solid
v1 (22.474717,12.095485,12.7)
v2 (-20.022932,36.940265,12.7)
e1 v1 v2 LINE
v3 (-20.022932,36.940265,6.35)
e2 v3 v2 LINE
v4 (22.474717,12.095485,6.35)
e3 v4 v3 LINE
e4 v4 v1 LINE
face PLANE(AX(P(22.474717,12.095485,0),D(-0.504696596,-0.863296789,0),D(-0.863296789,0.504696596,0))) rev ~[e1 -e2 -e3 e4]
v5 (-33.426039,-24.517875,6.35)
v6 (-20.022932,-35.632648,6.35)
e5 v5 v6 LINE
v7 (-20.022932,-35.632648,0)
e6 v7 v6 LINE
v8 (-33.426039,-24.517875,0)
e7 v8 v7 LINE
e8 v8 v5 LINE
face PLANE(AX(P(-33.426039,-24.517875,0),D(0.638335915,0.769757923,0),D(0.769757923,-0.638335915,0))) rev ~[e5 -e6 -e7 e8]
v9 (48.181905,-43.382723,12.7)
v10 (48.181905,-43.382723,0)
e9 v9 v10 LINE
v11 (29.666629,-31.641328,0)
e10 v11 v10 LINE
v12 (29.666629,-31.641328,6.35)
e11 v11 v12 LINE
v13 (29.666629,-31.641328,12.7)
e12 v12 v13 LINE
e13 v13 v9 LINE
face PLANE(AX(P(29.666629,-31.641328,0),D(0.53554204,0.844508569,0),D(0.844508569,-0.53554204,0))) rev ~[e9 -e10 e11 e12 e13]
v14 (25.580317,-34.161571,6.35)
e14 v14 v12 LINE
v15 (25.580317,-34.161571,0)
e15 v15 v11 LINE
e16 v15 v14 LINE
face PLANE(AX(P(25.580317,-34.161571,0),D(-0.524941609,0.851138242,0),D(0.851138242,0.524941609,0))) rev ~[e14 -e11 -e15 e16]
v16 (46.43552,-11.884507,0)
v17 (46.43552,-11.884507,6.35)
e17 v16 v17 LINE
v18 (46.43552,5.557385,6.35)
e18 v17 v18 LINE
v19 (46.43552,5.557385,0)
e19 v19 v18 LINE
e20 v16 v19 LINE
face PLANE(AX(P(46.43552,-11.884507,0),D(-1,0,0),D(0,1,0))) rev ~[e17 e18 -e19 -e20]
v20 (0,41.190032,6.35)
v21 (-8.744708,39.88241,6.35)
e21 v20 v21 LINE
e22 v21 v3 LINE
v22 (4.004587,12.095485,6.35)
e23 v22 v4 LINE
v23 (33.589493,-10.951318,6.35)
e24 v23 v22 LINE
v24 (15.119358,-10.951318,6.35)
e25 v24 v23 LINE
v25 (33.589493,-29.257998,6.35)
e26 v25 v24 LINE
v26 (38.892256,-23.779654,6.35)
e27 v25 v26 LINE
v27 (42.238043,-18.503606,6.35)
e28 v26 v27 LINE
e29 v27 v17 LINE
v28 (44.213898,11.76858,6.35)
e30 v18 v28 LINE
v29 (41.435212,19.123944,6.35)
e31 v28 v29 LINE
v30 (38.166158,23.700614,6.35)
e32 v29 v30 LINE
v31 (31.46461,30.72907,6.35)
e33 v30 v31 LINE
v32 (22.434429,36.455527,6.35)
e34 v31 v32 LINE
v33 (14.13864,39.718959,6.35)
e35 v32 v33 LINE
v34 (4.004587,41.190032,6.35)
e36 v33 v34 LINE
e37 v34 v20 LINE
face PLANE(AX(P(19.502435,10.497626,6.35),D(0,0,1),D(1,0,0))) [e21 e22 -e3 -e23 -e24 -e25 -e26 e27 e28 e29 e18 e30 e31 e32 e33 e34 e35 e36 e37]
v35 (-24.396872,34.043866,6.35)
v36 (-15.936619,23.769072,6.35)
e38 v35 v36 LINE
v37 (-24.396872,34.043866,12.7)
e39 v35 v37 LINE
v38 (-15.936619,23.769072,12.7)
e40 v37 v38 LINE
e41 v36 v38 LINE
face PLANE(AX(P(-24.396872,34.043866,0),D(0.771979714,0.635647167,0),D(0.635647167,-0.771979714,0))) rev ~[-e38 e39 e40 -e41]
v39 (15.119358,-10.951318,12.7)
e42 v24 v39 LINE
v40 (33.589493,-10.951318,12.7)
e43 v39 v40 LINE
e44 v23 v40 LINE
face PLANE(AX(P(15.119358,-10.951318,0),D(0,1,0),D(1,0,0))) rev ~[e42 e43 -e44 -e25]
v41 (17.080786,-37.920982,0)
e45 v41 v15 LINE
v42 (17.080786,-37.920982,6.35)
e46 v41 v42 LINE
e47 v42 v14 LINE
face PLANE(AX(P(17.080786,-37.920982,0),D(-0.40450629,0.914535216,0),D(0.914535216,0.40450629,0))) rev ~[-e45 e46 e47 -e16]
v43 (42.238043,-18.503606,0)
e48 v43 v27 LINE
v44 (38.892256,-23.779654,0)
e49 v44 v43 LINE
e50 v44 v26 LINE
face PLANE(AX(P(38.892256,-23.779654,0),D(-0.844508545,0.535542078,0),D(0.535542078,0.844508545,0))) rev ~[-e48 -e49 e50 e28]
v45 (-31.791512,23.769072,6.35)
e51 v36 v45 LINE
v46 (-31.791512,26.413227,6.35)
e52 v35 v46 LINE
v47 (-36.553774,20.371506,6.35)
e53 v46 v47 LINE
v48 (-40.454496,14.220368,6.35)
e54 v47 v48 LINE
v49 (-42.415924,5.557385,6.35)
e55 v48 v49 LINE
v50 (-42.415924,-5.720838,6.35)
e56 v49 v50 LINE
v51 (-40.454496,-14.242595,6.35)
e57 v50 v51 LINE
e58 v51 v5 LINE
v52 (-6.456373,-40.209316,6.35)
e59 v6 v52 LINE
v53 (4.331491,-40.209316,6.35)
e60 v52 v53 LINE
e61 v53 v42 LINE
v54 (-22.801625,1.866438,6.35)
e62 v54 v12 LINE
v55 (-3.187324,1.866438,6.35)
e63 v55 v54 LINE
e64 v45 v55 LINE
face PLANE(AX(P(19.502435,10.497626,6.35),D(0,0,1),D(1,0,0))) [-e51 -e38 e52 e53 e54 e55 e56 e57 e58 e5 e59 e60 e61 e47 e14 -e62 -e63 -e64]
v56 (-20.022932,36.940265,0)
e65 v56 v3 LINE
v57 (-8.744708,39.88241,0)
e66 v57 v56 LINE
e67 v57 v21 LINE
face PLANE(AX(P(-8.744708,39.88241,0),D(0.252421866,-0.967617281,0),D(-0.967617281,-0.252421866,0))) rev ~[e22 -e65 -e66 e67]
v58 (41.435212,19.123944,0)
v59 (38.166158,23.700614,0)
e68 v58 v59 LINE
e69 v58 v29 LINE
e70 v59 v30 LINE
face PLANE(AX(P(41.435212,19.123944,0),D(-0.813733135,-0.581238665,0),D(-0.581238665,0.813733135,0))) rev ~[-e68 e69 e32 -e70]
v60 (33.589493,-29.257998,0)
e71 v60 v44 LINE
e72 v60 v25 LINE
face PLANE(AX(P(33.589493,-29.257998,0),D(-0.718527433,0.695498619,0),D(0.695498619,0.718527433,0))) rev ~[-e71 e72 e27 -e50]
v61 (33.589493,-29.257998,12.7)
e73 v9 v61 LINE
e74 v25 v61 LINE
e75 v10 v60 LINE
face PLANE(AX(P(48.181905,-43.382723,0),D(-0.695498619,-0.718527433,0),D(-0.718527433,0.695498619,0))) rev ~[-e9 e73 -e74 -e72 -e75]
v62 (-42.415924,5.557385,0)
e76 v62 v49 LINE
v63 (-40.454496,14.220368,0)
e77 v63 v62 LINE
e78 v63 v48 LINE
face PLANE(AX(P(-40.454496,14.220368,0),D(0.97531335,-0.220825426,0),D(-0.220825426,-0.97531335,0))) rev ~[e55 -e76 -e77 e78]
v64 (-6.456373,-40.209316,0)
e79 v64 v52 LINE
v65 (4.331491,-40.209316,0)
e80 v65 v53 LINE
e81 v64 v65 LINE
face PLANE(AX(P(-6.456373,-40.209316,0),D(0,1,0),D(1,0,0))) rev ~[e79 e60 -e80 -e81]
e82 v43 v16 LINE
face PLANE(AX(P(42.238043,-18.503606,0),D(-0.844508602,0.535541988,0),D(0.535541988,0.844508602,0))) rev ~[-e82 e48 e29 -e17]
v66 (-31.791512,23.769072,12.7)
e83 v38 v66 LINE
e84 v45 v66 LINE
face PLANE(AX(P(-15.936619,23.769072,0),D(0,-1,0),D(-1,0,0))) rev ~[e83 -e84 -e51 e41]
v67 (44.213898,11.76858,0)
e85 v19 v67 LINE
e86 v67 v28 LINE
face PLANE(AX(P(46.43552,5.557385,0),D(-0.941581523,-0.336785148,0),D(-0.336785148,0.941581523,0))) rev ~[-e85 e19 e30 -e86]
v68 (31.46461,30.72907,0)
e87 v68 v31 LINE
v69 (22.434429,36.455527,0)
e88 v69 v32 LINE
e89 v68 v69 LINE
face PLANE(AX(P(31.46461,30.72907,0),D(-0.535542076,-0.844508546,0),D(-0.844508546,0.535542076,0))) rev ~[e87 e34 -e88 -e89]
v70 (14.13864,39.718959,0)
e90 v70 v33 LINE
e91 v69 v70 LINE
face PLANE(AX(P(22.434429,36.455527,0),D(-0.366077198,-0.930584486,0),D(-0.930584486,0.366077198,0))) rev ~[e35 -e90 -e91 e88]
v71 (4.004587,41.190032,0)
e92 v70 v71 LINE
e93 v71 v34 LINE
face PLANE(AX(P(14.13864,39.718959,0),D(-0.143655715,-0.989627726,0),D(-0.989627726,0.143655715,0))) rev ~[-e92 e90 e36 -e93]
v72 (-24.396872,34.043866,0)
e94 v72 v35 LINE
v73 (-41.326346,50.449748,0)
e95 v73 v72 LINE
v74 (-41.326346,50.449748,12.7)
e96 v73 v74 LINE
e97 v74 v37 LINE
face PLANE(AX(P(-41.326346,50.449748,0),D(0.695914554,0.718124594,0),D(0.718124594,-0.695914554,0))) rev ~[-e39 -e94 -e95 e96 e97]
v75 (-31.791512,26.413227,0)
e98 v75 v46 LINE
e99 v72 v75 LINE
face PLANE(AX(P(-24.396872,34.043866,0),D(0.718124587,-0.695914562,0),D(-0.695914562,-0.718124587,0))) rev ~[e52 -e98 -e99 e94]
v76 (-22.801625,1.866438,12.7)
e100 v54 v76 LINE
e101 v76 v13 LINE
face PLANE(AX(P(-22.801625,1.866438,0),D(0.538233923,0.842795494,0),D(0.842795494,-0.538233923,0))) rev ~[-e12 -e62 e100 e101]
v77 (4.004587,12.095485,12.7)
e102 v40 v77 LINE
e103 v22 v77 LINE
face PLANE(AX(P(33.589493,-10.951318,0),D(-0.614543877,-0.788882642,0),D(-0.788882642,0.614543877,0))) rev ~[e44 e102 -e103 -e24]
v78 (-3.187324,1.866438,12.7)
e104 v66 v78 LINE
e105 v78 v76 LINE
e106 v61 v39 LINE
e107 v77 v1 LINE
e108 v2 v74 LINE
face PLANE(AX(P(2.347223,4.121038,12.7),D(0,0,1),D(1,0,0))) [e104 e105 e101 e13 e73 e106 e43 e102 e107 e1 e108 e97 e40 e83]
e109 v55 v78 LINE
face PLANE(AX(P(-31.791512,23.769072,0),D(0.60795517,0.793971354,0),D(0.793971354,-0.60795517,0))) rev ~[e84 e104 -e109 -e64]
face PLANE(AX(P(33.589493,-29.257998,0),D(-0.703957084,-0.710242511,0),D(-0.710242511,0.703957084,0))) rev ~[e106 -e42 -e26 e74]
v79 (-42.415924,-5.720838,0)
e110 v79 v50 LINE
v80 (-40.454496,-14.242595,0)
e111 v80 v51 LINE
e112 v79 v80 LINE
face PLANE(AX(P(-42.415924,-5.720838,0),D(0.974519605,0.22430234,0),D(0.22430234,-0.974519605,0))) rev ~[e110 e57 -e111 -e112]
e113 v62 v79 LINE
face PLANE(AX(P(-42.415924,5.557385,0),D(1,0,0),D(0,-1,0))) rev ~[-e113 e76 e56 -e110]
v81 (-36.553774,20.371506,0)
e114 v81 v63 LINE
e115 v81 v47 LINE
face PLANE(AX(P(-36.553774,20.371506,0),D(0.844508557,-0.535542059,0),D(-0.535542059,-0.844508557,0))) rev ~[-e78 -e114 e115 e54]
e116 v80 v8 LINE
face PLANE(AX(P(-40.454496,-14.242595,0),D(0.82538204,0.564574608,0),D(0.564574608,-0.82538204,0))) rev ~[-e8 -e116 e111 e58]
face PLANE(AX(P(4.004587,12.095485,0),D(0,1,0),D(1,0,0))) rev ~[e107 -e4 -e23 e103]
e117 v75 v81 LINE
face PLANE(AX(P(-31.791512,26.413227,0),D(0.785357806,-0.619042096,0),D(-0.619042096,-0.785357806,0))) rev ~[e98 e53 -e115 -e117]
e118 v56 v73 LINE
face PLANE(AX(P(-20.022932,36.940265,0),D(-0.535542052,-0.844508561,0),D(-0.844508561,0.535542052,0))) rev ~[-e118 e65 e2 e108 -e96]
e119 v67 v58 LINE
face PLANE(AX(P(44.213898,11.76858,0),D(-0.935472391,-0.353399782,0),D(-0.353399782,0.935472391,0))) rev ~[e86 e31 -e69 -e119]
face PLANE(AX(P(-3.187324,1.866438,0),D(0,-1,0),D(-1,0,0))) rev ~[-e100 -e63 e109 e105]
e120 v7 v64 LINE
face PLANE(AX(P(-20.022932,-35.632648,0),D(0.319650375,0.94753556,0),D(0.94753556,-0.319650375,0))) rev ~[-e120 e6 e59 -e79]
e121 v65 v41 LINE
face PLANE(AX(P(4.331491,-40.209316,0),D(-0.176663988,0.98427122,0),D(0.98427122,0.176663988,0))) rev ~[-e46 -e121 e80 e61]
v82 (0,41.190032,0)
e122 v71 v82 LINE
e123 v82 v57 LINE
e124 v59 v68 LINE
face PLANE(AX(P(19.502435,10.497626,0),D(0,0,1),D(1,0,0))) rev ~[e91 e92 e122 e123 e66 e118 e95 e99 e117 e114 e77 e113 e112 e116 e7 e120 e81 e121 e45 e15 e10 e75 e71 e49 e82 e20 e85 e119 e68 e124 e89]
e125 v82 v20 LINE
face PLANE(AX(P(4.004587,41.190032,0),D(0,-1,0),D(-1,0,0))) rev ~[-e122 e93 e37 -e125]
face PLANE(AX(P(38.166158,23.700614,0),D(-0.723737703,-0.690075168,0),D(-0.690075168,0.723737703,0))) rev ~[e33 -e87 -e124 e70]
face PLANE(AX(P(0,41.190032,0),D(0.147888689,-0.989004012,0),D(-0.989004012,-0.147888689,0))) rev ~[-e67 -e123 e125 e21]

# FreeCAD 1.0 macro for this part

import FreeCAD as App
import Part
import Sketcher
from FreeCAD import Vector
Q = App.Units.Quantity

doc = App.newDocument("Part")
params = doc.addObject("Spreadsheet::Sheet", "Params")
for row, (alias, value) in enumerate([
    ("pad1_length", "0.5 in"),
    ("pad2_length", "0.25 in"),
], start=1):
    params.set(f"A{row}", alias)
    params.set(f"B{row}", "=" + value)
    params.setAlias(f"B{row}", alias)

body = doc.addObject("PartDesign::Body", "Body")

# Sketch on XY plane
sketch1 = body.newObject("Sketcher::SketchObject", "Sketch")
sketch1.AttachmentSupport = (doc.getObject("XY_Plane"), [""])
sketch1.MapMode = "FlatFace"
sketch1.addGeometry([
    Part.LineSegment(Vector(22, 12, 0), Vector(-20, 37, 0)),  # 0
    Part.LineSegment(Vector(-20, 37, 0), Vector(-41, 50, 0)),  # 1
    Part.LineSegment(Vector(-41, 50, 0), Vector(-24, 34, 0)),  # 2
    Part.LineSegment(Vector(-24, 34, 0), Vector(-16, 24, 0)),  # 3
    Part.LineSegment(Vector(-16, 24, 0), Vector(-32, 24, 0)),  # 4
    Part.LineSegment(Vector(-32, 24, 0), Vector(-3, 2, 0)),  # 5
    Part.LineSegment(Vector(-3, 2, 0), Vector(-23, 2, 0)),  # 6
    Part.LineSegment(Vector(-23, 2, 0), Vector(30, -32, 0)),  # 7
    Part.LineSegment(Vector(30, -32, 0), Vector(48, -43, 0)),  # 8
    Part.LineSegment(Vector(48, -43, 0), Vector(34, -29, 0)),  # 9
    Part.LineSegment(Vector(34, -29, 0), Vector(15, -11, 0)),  # 10
    Part.LineSegment(Vector(15, -11, 0), Vector(34, -11, 0)),  # 11
    Part.LineSegment(Vector(34, -11, 0), Vector(4, 12, 0)),  # 12
    Part.LineSegment(Vector(4, 12, 0), Vector(22, 12, 0)),  # 13
], False)
sketch1.addConstraint([
    Sketcher.Constraint("Coincident", 0, 2, 1, 1),
    Sketcher.Constraint("Coincident", 1, 2, 2, 1),
    Sketcher.Constraint("Coincident", 2, 2, 3, 1),
    Sketcher.Constraint("Coincident", 3, 2, 4, 1),
    Sketcher.Constraint("Coincident", 4, 2, 5, 1),
    Sketcher.Constraint("Coincident", 5, 2, 6, 1),
    Sketcher.Constraint("Coincident", 6, 2, 7, 1),
    Sketcher.Constraint("Coincident", 7, 2, 8, 1),
    Sketcher.Constraint("Coincident", 8, 2, 9, 1),
    Sketcher.Constraint("Coincident", 9, 2, 10, 1),
    Sketcher.Constraint("Coincident", 10, 2, 11, 1),
    Sketcher.Constraint("Coincident", 11, 2, 12, 1),
    Sketcher.Constraint("Coincident", 12, 2, 13, 1),
    Sketcher.Constraint("Coincident", 13, 2, 0, 1),
    Sketcher.Constraint("Horizontal", 4),
    Sketcher.Constraint("Horizontal", 6),
    Sketcher.Constraint("Horizontal", 11),
    Sketcher.Constraint("Horizontal", 13),
    Sketcher.Constraint("Parallel", 1, 8),
    Sketcher.Constraint("Vertical", 9, 2, 11, 2),
    Sketcher.Constraint("DistanceX", 6, 2, 6, 1, Q("19.614301 mm")),
    Sketcher.Constraint("DistanceY", -1, 1, 12, 2, Q("0.4762002 in")),
    Sketcher.Constraint("DistanceX", 13, 1, 13, 2, Q("18.47013 mm")),
    Sketcher.Constraint("DistanceY", 9, 2, -1, 1, Q("29.257998 mm")),
    Sketcher.Constraint("DistanceY", 2, 2, 0, 2, Q("2.896399 mm")),
    Sketcher.Constraint("DistanceY", 7, 2, 3, 2, Q("55.4104 mm")),
    Sketcher.Constraint("Distance", 0, Q("49.22716 mm")),
    Sketcher.Constraint("Distance", 1, Q("25.225812 mm")),
    Sketcher.Constraint("Distance", 3, Q("13.309668 mm")),
    Sketcher.Constraint("Distance", 8, Q("21.92432 mm")),
    Sketcher.Constraint("Distance", 12, Q("37.50229 mm")),
    Sketcher.Constraint("DistanceX", 4, 2, 4, 1, Q("15.854893 mm")),
    Sketcher.Constraint("DistanceX", 11, 1, 11, 2, Q("18.470135 mm")),
    Sketcher.Constraint("DistanceX", 2, 2, -1, 1, Q("24.396872 mm")),
    Sketcher.Constraint("DistanceX", 3, 2, -1, 1, Q("15.936619 mm")),
    Sketcher.Constraint("DistanceX", -1, 1, 7, 2, Q("29.666629 mm")),
    Sketcher.Constraint("DistanceY", 7, 2, -1, 1, Q("31.641328 mm")),
    Sketcher.Constraint("DistanceX", 2, 2, 0, 2, Q("4.37394 mm")),
    Sketcher.Constraint("DistanceY", 2, 2, 1, 2, Q("16.405882 mm")),
    Sketcher.Constraint("DistanceX", 4, 2, 5, 2, Q("28.604188 mm")),
    Sketcher.Constraint("DistanceY", 5, 2, 1, 2, Q("48.58331 mm")),
    Sketcher.Constraint("DistanceX", 3, 2, 9, 2, Q("49.526112 mm")),
])
pad1 = body.newObject("PartDesign::Pad", "Pad")
pad1.Profile = sketch1
pad1.setExpression("Length", "Params.pad1_length")

# Sketch on XY plane
sketch2 = body.newObject("Sketcher::SketchObject", "Sketch001")
sketch2.AttachmentSupport = (doc.getObject("XY_Plane"), [""])
sketch2.MapMode = "FlatFace"
sketch2.addGeometry([
    Part.LineSegment(Vector(4, 41.2, 0), Vector(0, 41.2, 0)),  # 0
    Part.LineSegment(Vector(0, 41.2, 0), Vector(-8.7, 39.9, 0)),  # 1
    Part.LineSegment(Vector(-8.7, 39.9, 0), Vector(-20, 36.9, 0)),  # 2
    Part.LineSegment(Vector(-20, 36.9, 0), Vector(-41.3, 50.4, 0)),  # 3
    Part.LineSegment(Vector(-41.3, 50.4, 0), Vector(-24.4, 34, 0)),  # 4
    Part.LineSegment(Vector(-24.4, 34, 0), Vector(-31.8, 26.4, 0)),  # 5
    Part.LineSegment(Vector(-31.8, 26.4, 0), Vector(-36.6, 20.4, 0)),  # 6
    Part.LineSegment(Vector(-36.6, 20.4, 0), Vector(-40.5, 14.2, 0)),  # 7
    Part.LineSegment(Vector(-40.5, 14.2, 0), Vector(-42.4, 5.6, 0)),  # 8
    Part.LineSegment(Vector(-42.4, 5.6, 0), Vector(-42.4, -5.7, 0)),  # 9
    Part.LineSegment(Vector(-42.4, -5.7, 0), Vector(-40.5, -14.2, 0)),  # 10
    Part.LineSegment(Vector(-40.5, -14.2, 0), Vector(-33.4, -24.5, 0)),  # 11
    Part.LineSegment(Vector(-33.4, -24.5, 0), Vector(-20, -35.6, 0)),  # 12
    Part.LineSegment(Vector(-20, -35.6, 0), Vector(-6.5, -40.2, 0)),  # 13
    Part.LineSegment(Vector(-6.5, -40.2, 0), Vector(4.3, -40.2, 0)),  # 14
    Part.LineSegment(Vector(4.3, -40.2, 0), Vector(17.1, -37.9, 0)),  # 15
    Part.LineSegment(Vector(17.1, -37.9, 0), Vector(25.6, -34.2, 0)),  # 16
    Part.LineSegment(Vector(25.6, -34.2, 0), Vector(29.7, -31.6, 0)),  # 17
    Part.LineSegment(Vector(29.7, -31.6, 0), Vector(48.2, -43.4, 0)),  # 18
    Part.LineSegment(Vector(48.2, -43.4, 0), Vector(33.6, -29.3, 0)),  # 19
    Part.LineSegment(Vector(33.6, -29.3, 0), Vector(38.9, -23.8, 0)),  # 20
    Part.LineSegment(Vector(38.9, -23.8, 0), Vector(42.2, -18.5, 0)),  # 21
    Part.LineSegment(Vector(42.2, -18.5, 0), Vector(46.4, -11.9, 0)),  # 22
    Part.LineSegment(Vector(46.4, -11.9, 0), Vector(46.4, 5.6, 0)),  # 23
    Part.LineSegment(Vector(46.4, 5.6, 0), Vector(44.2, 11.8, 0)),  # 24
    Part.LineSegment(Vector(44.2, 11.8, 0), Vector(41.4, 19.1, 0)),  # 25
    Part.LineSegment(Vector(41.4, 19.1, 0), Vector(38.2, 23.7, 0)),  # 26
    Part.LineSegment(Vector(38.2, 23.7, 0), Vector(31.5, 30.7, 0)),  # 27
    Part.LineSegment(Vector(31.5, 30.7, 0), Vector(22.4, 36.5, 0)),  # 28
    Part.LineSegment(Vector(22.4, 36.5, 0), Vector(14.1, 39.7, 0)),  # 29
    Part.LineSegment(Vector(14.1, 39.7, 0), Vector(4, 41.2, 0)),  # 30
], False)
sketch2.addConstraint([
    Sketcher.Constraint("Coincident", 0, 2, 1, 1),
    Sketcher.Constraint("Coincident", 1, 2, 2, 1),
    Sketcher.Constraint("Coincident", 2, 2, 3, 1),
    Sketcher.Constraint("Coincident", 3, 2, 4, 1),
    Sketcher.Constraint("Coincident", 4, 2, 5, 1),
    Sketcher.Constraint("Coincident", 5, 2, 6, 1),
    Sketcher.Constraint("Coincident", 6, 2, 7, 1),
    Sketcher.Constraint("Coincident", 7, 2, 8, 1),
    Sketcher.Constraint("Coincident", 8, 2, 9, 1),
    Sketcher.Constraint("Coincident", 9, 2, 10, 1),
    Sketcher.Constraint("Coincident", 10, 2, 11, 1),
    Sketcher.Constraint("Coincident", 11, 2, 12, 1),
    Sketcher.Constraint("Coincident", 12, 2, 13, 1),
    Sketcher.Constraint("Coincident", 13, 2, 14, 1),
    Sketcher.Constraint("Coincident", 14, 2, 15, 1),
    Sketcher.Constraint("Coincident", 15, 2, 16, 1),
    Sketcher.Constraint("Coincident", 16, 2, 17, 1),
    Sketcher.Constraint("Coincident", 17, 2, 18, 1),
    Sketcher.Constraint("Coincident", 18, 2, 19, 1),
    Sketcher.Constraint("Coincident", 19, 2, 20, 1),
    Sketcher.Constraint("Coincident", 20, 2, 21, 1),
    Sketcher.Constraint("Coincident", 21, 2, 22, 1),
    Sketcher.Constraint("Coincident", 22, 2, 23, 1),
    Sketcher.Constraint("Coincident", 23, 2, 24, 1),
    Sketcher.Constraint("Coincident", 24, 2, 25, 1),
    Sketcher.Constraint("Coincident", 25, 2, 26, 1),
    Sketcher.Constraint("Coincident", 26, 2, 27, 1),
    Sketcher.Constraint("Coincident", 27, 2, 28, 1),
    Sketcher.Constraint("Coincident", 28, 2, 29, 1),
    Sketcher.Constraint("Coincident", 29, 2, 30, 1),
    Sketcher.Constraint("Coincident", 30, 2, 0, 1),
    Sketcher.Constraint("Horizontal", 0),
    Sketcher.Constraint("Vertical", 9),
    Sketcher.Constraint("Horizontal", 14),
    Sketcher.Constraint("Vertical", 23),
    Sketcher.Constraint("PointOnObject", 0, 2, -2),
    Sketcher.Constraint("Perpendicular", 4, 5),
    Sketcher.Constraint("Perpendicular", 3, 7),
    Sketcher.Constraint("Perpendicular", 7, 18),
    Sketcher.Constraint("Perpendicular", 19, 20),
    Sketcher.Constraint("Perpendicular", 18, 21),
    Sketcher.Constraint("Parallel", 21, 22),
    Sketcher.Constraint("Perpendicular", 22, 28),
    Sketcher.Constraint("Horizontal", 8, 2, 23, 2),
    Sketcher.Constraint("Vertical", 7, 2, 10, 2),
    Sketcher.Constraint("Vertical", 2, 2, 12, 2),
    Sketcher.Constraint("DistanceY", 14, 2, 16, 2, Q("0.2381002 in")),
    Sketcher.Constraint("DistanceX", 26, 2, 24, 2, Q("0.2381 in")),
    Sketcher.Constraint("Distance", 29, Q("8.914601 mm")),
    Sketcher.Constraint("DistanceY", 23, 1, 23, 2, Q("17.441892 mm")),
    Sketcher.Constraint("DistanceY", 19, 2, -1, 1, Q("29.257998 mm")),
    Sketcher.Constraint("DistanceY", 4, 2, 2, 2, Q("2.896399 mm")),
    Sketcher.Constraint("DistanceX", 6, 2, 4, 2, Q("12.156902 mm")),
    Sketcher.Constraint("DistanceY", 7, 2, 4, 2, Q("19.823498 mm")),
    Sketcher.Constraint("DistanceY", 10, 2, 6, 2, Q("34.614101 mm")),
    Sketcher.Constraint("DistanceY", 13, 2, 8, 2, Q("45.766701 mm")),
    Sketcher.Constraint("DistanceX", 14, 2, 19, 2, Q("29.258002 mm")),
    Sketcher.Constraint("DistanceY", 21, 2, 22, 2, Q("6.619099 mm")),
    Sketcher.Constraint("DistanceY", 20, 2, 25, 2, Q("42.903598 mm")),
    Sketcher.Constraint("Distance", 3, Q("25.225812 mm")),
    Sketcher.Constraint("Distance", 7, Q("7.283689 mm")),
    Sketcher.Constraint("Distance", 11, Q("12.44912 mm")),
    Sketcher.Constraint("Distance", 13, Q("14.317731 mm")),
    Sketcher.Constraint("Distance", 15, Q("12.95303 mm")),
    Sketcher.Constraint("Distance", 18, Q("21.92432 mm")),
    Sketcher.Constraint("Distance", 22, Q("7.837811 mm")),
    Sketcher.Constraint("Distance", 26, Q("5.624289 mm")),
    Sketcher.Constraint("Distance", 27, Q("9.71133 mm")),
    Sketcher.Constraint("DistanceX", 0, 2, 0, 1, Q("4.004587 mm")),
    Sketcher.Constraint("DistanceX", 14, 1, 14, 2, Q("10.787864 mm")),
    Sketcher.Constraint("DistanceY", 9, 2, 9, 1, Q("11.278223 mm")),
    Sketcher.Constraint("DistanceY", -1, 1, 1, 2, Q("39.88241 mm")),
    Sketcher.Constraint("DistanceX", 4, 2, -1, 1, Q("24.396872 mm")),
    Sketcher.Constraint("DistanceX", 11, 2, -1, 1, Q("33.426039 mm")),
    Sketcher.Constraint("DistanceY", 12, 2, -1, 1, Q("35.632648 mm")),
    Sketcher.Constraint("DistanceX", -1, 1, 14, 2, Q("4.331491 mm")),
    Sketcher.Constraint("DistanceY", 16, 2, -1, 1, Q("34.161571 mm")),
    Sketcher.Constraint("DistanceX", -1, 1, 17, 2, Q("29.666629 mm")),
    Sketcher.Constraint("DistanceY", 17, 2, -1, 1, Q("31.641328 mm")),
    Sketcher.Constraint("DistanceX", -1, 1, 22, 2, Q("46.43552 mm")),
    Sketcher.Constraint("DistanceY", -1, 1, 24, 2, Q("11.76858 mm")),
    Sketcher.Constraint("DistanceX", -1, 1, 26, 2, Q("38.166158 mm")),
    Sketcher.Constraint("DistanceX", -1, 1, 27, 2, Q("31.46461 mm")),
    Sketcher.Constraint("DistanceY", -1, 1, 27, 2, Q("30.72907 mm")),
    Sketcher.Constraint("DistanceX", -1, 1, 28, 2, Q("22.434429 mm")),
    Sketcher.Constraint("DistanceX", -1, 1, 29, 2, Q("14.13864 mm")),
    Sketcher.Constraint("DistanceX", 5, 2, 4, 2, Q("7.39464 mm")),
    Sketcher.Constraint("DistanceX", 8, 2, 6, 2, Q("5.86215 mm")),
    Sketcher.Constraint("DistanceY", 8, 2, 6, 2, Q("14.814121 mm")),
    Sketcher.Constraint("DistanceX", 13, 2, 15, 2, Q("23.537159 mm")),
    Sketcher.Constraint("DistanceX", 15, 2, 16, 2, Q("8.499531 mm")),
    Sketcher.Constraint("DistanceY", 26, 2, 0, 2, Q("17.489418 mm")),
    Sketcher.Constraint("Distance", 1, Q("8.841934 mm")),
])
pad2 = body.newObject("PartDesign::Pad", "Pad001")
pad2.Profile = sketch2
pad2.setExpression("Length", "Params.pad2_length")

doc.recompute()
